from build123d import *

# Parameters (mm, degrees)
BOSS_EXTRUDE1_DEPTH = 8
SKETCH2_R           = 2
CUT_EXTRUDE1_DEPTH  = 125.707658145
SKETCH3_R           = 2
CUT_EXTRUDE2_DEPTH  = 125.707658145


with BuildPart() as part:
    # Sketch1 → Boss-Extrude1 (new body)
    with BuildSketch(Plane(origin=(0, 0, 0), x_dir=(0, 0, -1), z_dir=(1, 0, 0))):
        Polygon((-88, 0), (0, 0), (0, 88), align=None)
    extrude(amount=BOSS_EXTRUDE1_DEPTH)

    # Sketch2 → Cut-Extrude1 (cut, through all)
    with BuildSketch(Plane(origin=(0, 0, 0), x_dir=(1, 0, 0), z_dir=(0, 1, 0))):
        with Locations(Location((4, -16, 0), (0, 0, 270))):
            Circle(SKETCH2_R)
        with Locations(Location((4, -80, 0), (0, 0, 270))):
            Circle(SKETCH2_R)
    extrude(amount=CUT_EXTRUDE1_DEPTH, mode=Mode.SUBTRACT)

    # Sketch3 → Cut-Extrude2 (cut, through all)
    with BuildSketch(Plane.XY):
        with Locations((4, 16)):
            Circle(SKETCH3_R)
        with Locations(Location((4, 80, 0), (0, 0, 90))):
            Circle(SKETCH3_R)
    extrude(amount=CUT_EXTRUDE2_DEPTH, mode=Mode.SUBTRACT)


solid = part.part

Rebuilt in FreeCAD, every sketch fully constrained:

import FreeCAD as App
import Part
import Sketcher

V = App.Vector


def add_polygon(sketch, points):
    """Adds a closed chain of lines whose ends are joined by coincident constraints."""
    first, n = sketch.GeometryCount, len(points)
    for a, b in zip(points, points[1:] + points[:1]):
        sketch.addGeometry(Part.LineSegment(App.Vector(*a, 0), App.Vector(*b, 0)), False)
    for i in range(n):
        sketch.addConstraint(Sketcher.Constraint("Coincident", first + i, 2, first + (i + 1) % n, 1))

doc = App.newDocument("Part")
body = doc.addObject("PartDesign::Body", "Body")

# Sketch on YZ plane
sketch1 = body.newObject("Sketcher::SketchObject", "Sketch")
sketch1.AttachmentSupport = (doc.getObject("YZ_Plane"), [""])
sketch1.MapMode = "FlatFace"
add_polygon(sketch1, [(0, 88), (0, 0), (88, 0)])  # lines 0-2
sketch1.addConstraint([
    Sketcher.Constraint("Vertical", 0),
    Sketcher.Constraint("Horizontal", 1),
    Sketcher.Constraint("Coincident", 0, 2, -1, 1),
    Sketcher.Constraint("Equal", 1, 0),
    Sketcher.Constraint("DistanceX", 1, 1, 1, 2, 88.0),
])
pad1 = body.newObject("PartDesign::Pad", "Pad")
pad1.Profile = sketch1
pad1.Length = 8

# Sketch on XZ plane
sketch2 = body.newObject("Sketcher::SketchObject", "Sketch001")
sketch2.AttachmentSupport = (doc.getObject("XZ_Plane"), [""])
sketch2.MapMode = "FlatFace"
sketch2.addGeometry([
    Part.Circle(V(4, 16, 0), V(0, 0, 1), 2),
    Part.Circle(V(4, 80, 0), V(0, 0, 1), 2),
], False)
sketch2.addConstraint([
    Sketcher.Constraint("Equal", 0, 1),
    Sketcher.Constraint("Vertical", 0, 3, 1, 3),
    Sketcher.Constraint("Diameter", 0, 4.0),
    Sketcher.Constraint("DistanceX", -1, 1, 0, 3, 4.0),
    Sketcher.Constraint("DistanceY", -1, 1, 0, 3, 16.0),
    Sketcher.Constraint("DistanceY", -1, 1, 1, 3, 80.0),
])
pocket1 = body.newObject("PartDesign::Pocket", "Pocket")
pocket1.Profile = sketch2
pocket1.Type = "ThroughAll"

# Sketch on XY plane
sketch3 = body.newObject("Sketcher::SketchObject", "Sketch002")
sketch3.AttachmentSupport = (doc.getObject("XY_Plane"), [""])
sketch3.MapMode = "FlatFace"
sketch3.addGeometry([
    Part.Circle(V(4, 16, 0), V(0, 0, 1), 2),
    Part.Circle(V(4, 80, 0), V(0, 0, 1), 2),
], False)
sketch3.addConstraint([
    Sketcher.Constraint("Equal", 0, 1),
    Sketcher.Constraint("Vertical", 0, 3, 1, 3),
    Sketcher.Constraint("Diameter", 0, 4.0),
    Sketcher.Constraint("DistanceX", -1, 1, 0, 3, 4.0),
    Sketcher.Constraint("DistanceY", -1, 1, 0, 3, 16.0),
    Sketcher.Constraint("DistanceY", -1, 1, 1, 3, 80.0),
])
pocket2 = body.newObject("PartDesign::Pocket", "Pocket001")
pocket2.Profile = sketch3
pocket2.Type = "ThroughAll"
pocket2.Reversed = True

doc.recompute()
